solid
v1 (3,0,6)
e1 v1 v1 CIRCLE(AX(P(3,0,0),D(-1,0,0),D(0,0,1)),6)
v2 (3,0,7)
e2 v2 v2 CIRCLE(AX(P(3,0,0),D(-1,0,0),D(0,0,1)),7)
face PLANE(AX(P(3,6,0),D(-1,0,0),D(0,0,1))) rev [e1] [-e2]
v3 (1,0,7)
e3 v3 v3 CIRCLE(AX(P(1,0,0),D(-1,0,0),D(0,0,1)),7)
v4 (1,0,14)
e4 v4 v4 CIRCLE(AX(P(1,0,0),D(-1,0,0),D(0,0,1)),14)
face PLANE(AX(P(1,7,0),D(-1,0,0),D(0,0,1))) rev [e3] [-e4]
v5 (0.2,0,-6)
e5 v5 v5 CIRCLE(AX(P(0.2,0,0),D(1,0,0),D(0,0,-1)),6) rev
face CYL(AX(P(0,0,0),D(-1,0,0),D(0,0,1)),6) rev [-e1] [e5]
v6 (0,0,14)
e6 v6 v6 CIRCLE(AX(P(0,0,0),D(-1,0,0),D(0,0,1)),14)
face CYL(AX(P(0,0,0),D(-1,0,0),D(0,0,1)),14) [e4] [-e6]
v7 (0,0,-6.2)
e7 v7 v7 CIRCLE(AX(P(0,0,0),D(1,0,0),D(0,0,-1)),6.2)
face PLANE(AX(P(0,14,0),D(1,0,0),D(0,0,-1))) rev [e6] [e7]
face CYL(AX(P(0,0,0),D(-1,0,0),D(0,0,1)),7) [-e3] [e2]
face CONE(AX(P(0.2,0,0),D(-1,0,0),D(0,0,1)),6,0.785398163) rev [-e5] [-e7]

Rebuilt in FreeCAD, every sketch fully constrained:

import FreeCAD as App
import Part
import Sketcher

V = App.Vector


def edges_at(feature, points):
    """Names of the edges that pass closest to the given points."""
    edges = feature.Shape.Edges
    near = lambda p: min(range(len(edges)), key=lambda i: edges[i].distToShape(Part.Vertex(*p))[0])
    return sorted({f"Edge{near(p) + 1}" for p in points})

doc = App.newDocument("Part")
body = doc.addObject("PartDesign::Body", "Body")

# Sketch on XY plane
sketch1 = body.newObject("Sketcher::SketchObject", "Sketch")
sketch1.AttachmentSupport = (doc.getObject("XY_Plane"), [""])
sketch1.MapMode = "FlatFace"
sketch1.addGeometry([
    Part.LineSegment(V(0, 14, 0), V(0, 6, 0)),  # 0
    Part.LineSegment(V(0, 6, 0), V(3, 6, 0)),  # 1
    Part.LineSegment(V(3, 6, 0), V(3, 7, 0)),  # 2
    Part.LineSegment(V(3, 7, 0), V(1, 7, 0)),  # 3
    Part.LineSegment(V(1, 7, 0), V(1, 14, 0)),  # 4
    Part.LineSegment(V(1, 14, 0), V(0, 14, 0)),  # 5
], False)
sketch1.addConstraint([
    Sketcher.Constraint("Coincident", 0, 2, 1, 1),
    Sketcher.Constraint("Coincident", 1, 2, 2, 1),
    Sketcher.Constraint("Coincident", 2, 2, 3, 1),
    Sketcher.Constraint("Coincident", 3, 2, 4, 1),
    Sketcher.Constraint("Coincident", 4, 2, 5, 1),
    Sketcher.Constraint("Coincident", 5, 2, 0, 1),
    Sketcher.Constraint("Vertical", 0),
    Sketcher.Constraint("Horizontal", 1),
    Sketcher.Constraint("Vertical", 2),
    Sketcher.Constraint("Horizontal", 3),
    Sketcher.Constraint("Vertical", 4),
    Sketcher.Constraint("Horizontal", 5),
    Sketcher.Constraint("PointOnObject", 0, 2, -2),
    Sketcher.Constraint("Equal", 5, 2),
    Sketcher.Constraint("DistanceX", 1, 1, 1, 2, 3.0),
    Sketcher.Constraint("DistanceX", 3, 2, 3, 1, 2.0),
    Sketcher.Constraint("DistanceY", 0, 2, 0, 1, 8.0),
    Sketcher.Constraint("DistanceY", -1, 1, 0, 2, 6.0),
])
revolution = body.newObject("PartDesign::Revolution", "Revolution")
revolution.Profile = sketch1
revolution.ReferenceAxis = (sketch1, ["H_Axis"])
revolution.Angle = 360
doc.recompute()

chamfer = body.newObject("PartDesign::Chamfer", "Chamfer")
chamfer.Base = (revolution, edges_at(revolution, [(0, -6, 0)]))
chamfer.Size = 0.2

doc.recompute()
